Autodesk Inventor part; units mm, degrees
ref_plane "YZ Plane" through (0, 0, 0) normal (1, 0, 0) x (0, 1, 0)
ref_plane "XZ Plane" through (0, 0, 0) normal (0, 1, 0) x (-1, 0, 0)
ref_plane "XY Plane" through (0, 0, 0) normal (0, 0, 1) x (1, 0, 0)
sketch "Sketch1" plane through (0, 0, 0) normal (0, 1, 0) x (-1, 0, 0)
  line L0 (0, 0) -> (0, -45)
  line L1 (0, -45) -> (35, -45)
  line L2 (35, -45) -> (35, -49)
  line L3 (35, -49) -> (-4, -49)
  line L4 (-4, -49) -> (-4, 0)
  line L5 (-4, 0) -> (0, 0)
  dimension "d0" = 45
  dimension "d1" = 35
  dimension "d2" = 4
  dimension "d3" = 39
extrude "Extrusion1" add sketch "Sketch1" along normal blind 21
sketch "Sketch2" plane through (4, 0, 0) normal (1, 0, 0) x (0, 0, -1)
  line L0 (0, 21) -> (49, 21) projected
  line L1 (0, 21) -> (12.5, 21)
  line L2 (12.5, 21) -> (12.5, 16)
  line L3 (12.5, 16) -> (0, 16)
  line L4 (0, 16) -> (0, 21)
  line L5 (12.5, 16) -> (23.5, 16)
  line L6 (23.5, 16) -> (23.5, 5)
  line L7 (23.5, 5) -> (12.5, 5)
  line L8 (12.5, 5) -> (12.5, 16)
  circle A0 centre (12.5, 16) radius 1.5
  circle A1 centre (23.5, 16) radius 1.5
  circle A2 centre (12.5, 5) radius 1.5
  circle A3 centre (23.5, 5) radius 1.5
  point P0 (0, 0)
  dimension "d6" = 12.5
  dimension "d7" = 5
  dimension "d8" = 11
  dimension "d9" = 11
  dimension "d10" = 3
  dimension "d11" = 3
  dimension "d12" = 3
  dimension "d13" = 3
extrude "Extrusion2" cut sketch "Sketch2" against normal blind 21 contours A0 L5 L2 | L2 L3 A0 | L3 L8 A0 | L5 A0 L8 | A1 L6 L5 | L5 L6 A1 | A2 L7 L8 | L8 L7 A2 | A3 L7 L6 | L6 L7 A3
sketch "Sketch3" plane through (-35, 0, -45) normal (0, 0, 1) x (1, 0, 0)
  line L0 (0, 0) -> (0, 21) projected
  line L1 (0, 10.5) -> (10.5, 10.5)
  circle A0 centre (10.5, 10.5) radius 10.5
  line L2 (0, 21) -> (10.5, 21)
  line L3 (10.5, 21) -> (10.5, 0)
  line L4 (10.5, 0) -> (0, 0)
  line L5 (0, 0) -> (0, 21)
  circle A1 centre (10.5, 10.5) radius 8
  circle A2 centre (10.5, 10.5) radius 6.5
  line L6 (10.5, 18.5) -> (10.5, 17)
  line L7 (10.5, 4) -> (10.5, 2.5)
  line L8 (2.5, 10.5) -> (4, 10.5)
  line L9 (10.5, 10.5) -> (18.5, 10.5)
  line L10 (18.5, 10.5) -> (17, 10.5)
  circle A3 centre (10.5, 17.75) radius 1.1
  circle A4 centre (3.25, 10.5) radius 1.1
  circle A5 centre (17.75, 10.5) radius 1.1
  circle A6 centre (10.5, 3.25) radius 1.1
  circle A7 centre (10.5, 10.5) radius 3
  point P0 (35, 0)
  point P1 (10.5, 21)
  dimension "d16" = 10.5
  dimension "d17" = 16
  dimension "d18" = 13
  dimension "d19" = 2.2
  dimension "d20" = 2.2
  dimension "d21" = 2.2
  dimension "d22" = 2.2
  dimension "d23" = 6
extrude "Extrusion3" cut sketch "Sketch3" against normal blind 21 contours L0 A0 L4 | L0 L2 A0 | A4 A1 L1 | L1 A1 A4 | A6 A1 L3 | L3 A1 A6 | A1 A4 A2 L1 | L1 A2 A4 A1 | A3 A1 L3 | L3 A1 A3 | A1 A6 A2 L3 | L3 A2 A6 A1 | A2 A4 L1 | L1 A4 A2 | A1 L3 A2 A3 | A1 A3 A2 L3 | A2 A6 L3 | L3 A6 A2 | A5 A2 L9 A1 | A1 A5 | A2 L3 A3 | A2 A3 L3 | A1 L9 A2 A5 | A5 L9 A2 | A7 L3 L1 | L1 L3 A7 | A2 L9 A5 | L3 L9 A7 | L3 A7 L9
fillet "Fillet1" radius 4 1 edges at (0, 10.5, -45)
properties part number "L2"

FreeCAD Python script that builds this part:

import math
import FreeCAD as App
import Part
import Sketcher
from FreeCAD import Vector


def edges_at(feature, points):
    """Names of the edges that pass closest to the given points."""
    edges = feature.Shape.Edges
    near = lambda p: min(range(len(edges)), key=lambda i: edges[i].distToShape(Part.Vertex(*p))[0])
    return sorted({f"Edge{near(p) + 1}" for p in points})

doc = App.newDocument("Part")
params = doc.addObject("Spreadsheet::Sheet", "Params")
for row, (alias, value) in enumerate([
    ("sketch1_width", "4 mm"),
    ("sketch1_width2", "39 mm"),
    ("sketch1_height", "45 mm"),
    ("pad1_length", "21 mm"),
    ("sketch2_diameter", "3 mm"),
    ("pocket1_length", "21 mm"),
    ("sketch3_diameter", "6 mm"),
    ("sketch3_diameter2", "2.2 mm"),
    ("sketch3_radius", "10.5 mm"),
    ("pocket2_length", "21 mm"),
    ("fillet_radius", "4 mm"),
], start=1):
    params.set(f"A{row}", alias)
    params.set(f"B{row}", "=" + value)
    params.setAlias(f"B{row}", alias)

body = doc.addObject("PartDesign::Body", "Body")

# Sketch on XZ plane
sketch1 = body.newObject("Sketcher::SketchObject", "Sketch")
sketch1.AttachmentSupport = (doc.getObject("XZ_Plane"), [""])
sketch1.MapMode = "FlatFace"
sketch1.addGeometry(Part.LineSegment(Vector(0, -45, 0), Vector(0, 0, 0)), False)
sketch1.addGeometry(Part.LineSegment(Vector(0, 0, 0), Vector(4, 0, 0)), False)
sketch1.addGeometry(Part.LineSegment(Vector(4, 0, 0), Vector(4, -49, 0)), False)
sketch1.addGeometry(Part.LineSegment(Vector(4, -49, 0), Vector(-35, -49, 0)), False)
sketch1.addGeometry(Part.LineSegment(Vector(-35, -49, 0), Vector(-35, -45, 0)), False)
sketch1.addGeometry(Part.LineSegment(Vector(-35, -45, 0), Vector(0, -45, 0)), False)
sketch1.addConstraint(Sketcher.Constraint("Coincident", 0, 2, 1, 1))
sketch1.addConstraint(Sketcher.Constraint("Coincident", 1, 2, 2, 1))
sketch1.addConstraint(Sketcher.Constraint("Coincident", 2, 2, 3, 1))
sketch1.addConstraint(Sketcher.Constraint("Coincident", 3, 2, 4, 1))
sketch1.addConstraint(Sketcher.Constraint("Coincident", 4, 2, 5, 1))
sketch1.addConstraint(Sketcher.Constraint("Coincident", 5, 2, 0, 1))
sketch1.addConstraint(Sketcher.Constraint("Vertical", 0))
sketch1.addConstraint(Sketcher.Constraint("Horizontal", 1))
sketch1.addConstraint(Sketcher.Constraint("Vertical", 2))
sketch1.addConstraint(Sketcher.Constraint("Horizontal", 3))
sketch1.addConstraint(Sketcher.Constraint("Vertical", 4))
sketch1.addConstraint(Sketcher.Constraint("Horizontal", 5))
sketch1.addConstraint(Sketcher.Constraint("Coincident", 0, 2, -1, 1))
sketch1.addConstraint(Sketcher.Constraint("Equal", 1, 4))
sketch1.addConstraint(Sketcher.Constraint("DistanceX", 1, 1, 1, 2, 4.0))
sketch1.addConstraint(Sketcher.Constraint("DistanceX", 3, 2, 3, 1, 39.0))
sketch1.addConstraint(Sketcher.Constraint("DistanceY", 0, 1, 0, 2, 45.0))
sketch1.setExpression("Constraints[14]", "Params.sketch1_width")
sketch1.setExpression("Constraints[15]", "Params.sketch1_width2")
sketch1.setExpression("Constraints[16]", "Params.sketch1_height")
pad1 = body.newObject("PartDesign::Pad", "Pad")
pad1.Profile = sketch1
pad1.setExpression("Length", "Params.pad1_length")
pad1.Reversed = True

# Sketch on YZ plane
sketch2 = body.newObject("Sketcher::SketchObject", "Sketch001")
sketch2.AttachmentSupport = (doc.getObject("YZ_Plane"), [""])
sketch2.MapMode = "FlatFace"
sketch2.AttachmentOffset = App.Placement(Vector(0, 0, 4), App.Rotation())
sketch2.addGeometry(Part.Circle(Vector(16, -12.5, 0), Vector(0, 0, 1), 1.5), False)
sketch2.addGeometry(Part.Circle(Vector(16, -23.5, 0), Vector(0, 0, 1), 1.5), False)
sketch2.addGeometry(Part.Circle(Vector(5, -12.5, 0), Vector(0, 0, 1), 1.5), False)
sketch2.addGeometry(Part.Circle(Vector(5, -23.5, 0), Vector(0, 0, 1), 1.5), False)
sketch2.addConstraint(Sketcher.Constraint("Equal", 0, 1))
sketch2.addConstraint(Sketcher.Constraint("Equal", 1, 2))
sketch2.addConstraint(Sketcher.Constraint("Equal", 2, 3))
sketch2.addConstraint(Sketcher.Constraint("Horizontal", 0, 3, 2, 3))
sketch2.addConstraint(Sketcher.Constraint("Horizontal", 1, 3, 3, 3))
sketch2.addConstraint(Sketcher.Constraint("Vertical", 0, 3, 1, 3))
sketch2.addConstraint(Sketcher.Constraint("Vertical", 2, 3, 3, 3))
sketch2.addConstraint(Sketcher.Constraint("Diameter", 0, 3.0))
sketch2.addConstraint(Sketcher.Constraint("DistanceX", -1, 1, 2, 3, 5.0))
sketch2.addConstraint(Sketcher.Constraint("DistanceY", 1, 3, 0, 3, 11.0))
sketch2.addConstraint(Sketcher.Constraint("DistanceX", 2, 3, 0, 3, 11.0))
sketch2.addConstraint(Sketcher.Constraint("DistanceY", 0, 3, -1, 1, 12.5))
sketch2.setExpression("Constraints[7]", "Params.sketch2_diameter")
pocket1 = body.newObject("PartDesign::Pocket", "Pocket")
pocket1.Profile = sketch2
pocket1.setExpression("Length", "Params.pocket1_length")

# Sketch on XY plane
sketch3 = body.newObject("Sketcher::SketchObject", "Sketch002")
sketch3.AttachmentSupport = (doc.getObject("XY_Plane"), [""])
sketch3.MapMode = "FlatFace"
sketch3.AttachmentOffset = App.Placement(Vector(0, 0, -45), App.Rotation())
sketch3.addGeometry(Part.LineSegment(Vector(-35, 10.5, 0), Vector(-35, 0, 0)), False)
sketch3.addGeometry(Part.LineSegment(Vector(-35, 0, 0), Vector(-24.5, 0, 0)), False)
sketch3.addGeometry(Part.ArcOfCircle(Part.Circle(Vector(-24.5, 10.5, 0), Vector(0, 0, 1), 10.5), math.radians(180), math.radians(270)), False)
sketch3.addGeometry(Part.LineSegment(Vector(-35, 21, 0), Vector(-35, 10.5, 0)), False)
sketch3.addGeometry(Part.ArcOfCircle(Part.Circle(Vector(-24.5, 10.5, 0), Vector(0, 0, 1), 10.5), math.radians(90), math.radians(180)), False)
sketch3.addGeometry(Part.LineSegment(Vector(-24.5, 21, 0), Vector(-35, 21, 0)), False)
sketch3.addGeometry(Part.Circle(Vector(-31.8, 10.5, 0), Vector(0, 0, 1), 1.1), False)
sketch3.addGeometry(Part.Circle(Vector(-24.5, 3.2, 0), Vector(0, 0, 1), 1.1), False)
sketch3.addGeometry(Part.Circle(Vector(-24.5, 17.8, 0), Vector(0, 0, 1), 1.1), False)
sketch3.addGeometry(Part.Circle(Vector(-17.2, 10.5, 0), Vector(0, 0, 1), 1.1), False)
sketch3.addGeometry(Part.Circle(Vector(-24.5, 10.5, 0), Vector(0, 0, 1), 3), False)
sketch3.addConstraint(Sketcher.Constraint("Coincident", 0, 2, 1, 1))
sketch3.addConstraint(Sketcher.Constraint("Tangent", 1, 2, 2, 2))
sketch3.addConstraint(Sketcher.Constraint("Tangent", 2, 1, 0, 1))
sketch3.addConstraint(Sketcher.Constraint("Tangent", 3, 2, 4, 2))
sketch3.addConstraint(Sketcher.Constraint("Tangent", 4, 1, 5, 1))
sketch3.addConstraint(Sketcher.Constraint("Coincident", 5, 2, 3, 1))
sketch3.addConstraint(Sketcher.Constraint("Vertical", 0))
sketch3.addConstraint(Sketcher.Constraint("Horizontal", 1))
sketch3.addConstraint(Sketcher.Constraint("Vertical", 3))
sketch3.addConstraint(Sketcher.Constraint("Horizontal", 5))
sketch3.addConstraint(Sketcher.Constraint("Coincident", 4, 3, 2, 3))
sketch3.addConstraint(Sketcher.Constraint("Coincident", 10, 3, 2, 3))
sketch3.addConstraint(Sketcher.Constraint("Equal", 2, 4))
sketch3.addConstraint(Sketcher.Constraint("Equal", 6, 7))
sketch3.addConstraint(Sketcher.Constraint("Equal", 7, 8))
sketch3.addConstraint(Sketcher.Constraint("Equal", 8, 9))
sketch3.addConstraint(Sketcher.Constraint("PointOnObject", 0, 2, -1))
sketch3.addConstraint(Sketcher.Constraint("Horizontal", 4, 3, 6, 3))
sketch3.addConstraint(Sketcher.Constraint("Horizontal", 6, 3, 9, 3))
sketch3.addConstraint(Sketcher.Constraint("Vertical", 4, 3, 7, 3))
sketch3.addConstraint(Sketcher.Constraint("Vertical", 7, 3, 8, 3))
sketch3.addConstraint(Sketcher.Constraint("Diameter", 10, 6.0))
sketch3.addConstraint(Sketcher.Constraint("Diameter", 6, 2.2))
sketch3.addConstraint(Sketcher.Constraint("Radius", 2, 10.5))
sketch3.addConstraint(Sketcher.Constraint("DistanceX", 0, 2, -1, 1, 35.0))
sketch3.addConstraint(Sketcher.Constraint("DistanceY", 7, 3, 8, 3, 14.5))
sketch3.addConstraint(Sketcher.Constraint("DistanceX", 6, 3, 9, 3, 14.5))
sketch3.addConstraint(Sketcher.Constraint("DistanceX", 6, 3, -1, 1, 31.75))
sketch3.addConstraint(Sketcher.Constraint("DistanceY", -1, 1, 7, 3, 3.25))
sketch3.setExpression("Constraints[21]", "Params.sketch3_diameter")
sketch3.setExpression("Constraints[22]", "Params.sketch3_diameter2")
sketch3.setExpression("Constraints[23]", "Params.sketch3_radius")
pocket2 = body.newObject("PartDesign::Pocket", "Pocket001")
pocket2.Profile = sketch3
pocket2.setExpression("Length", "Params.pocket2_length")
doc.recompute()

fillet = body.newObject("PartDesign::Fillet", "Fillet")
fillet.Base = (pocket2, edges_at(pocket2, [(0, 10.5, -45)]))
fillet.setExpression("Radius", "Params.fillet_radius")

doc.recompute()
